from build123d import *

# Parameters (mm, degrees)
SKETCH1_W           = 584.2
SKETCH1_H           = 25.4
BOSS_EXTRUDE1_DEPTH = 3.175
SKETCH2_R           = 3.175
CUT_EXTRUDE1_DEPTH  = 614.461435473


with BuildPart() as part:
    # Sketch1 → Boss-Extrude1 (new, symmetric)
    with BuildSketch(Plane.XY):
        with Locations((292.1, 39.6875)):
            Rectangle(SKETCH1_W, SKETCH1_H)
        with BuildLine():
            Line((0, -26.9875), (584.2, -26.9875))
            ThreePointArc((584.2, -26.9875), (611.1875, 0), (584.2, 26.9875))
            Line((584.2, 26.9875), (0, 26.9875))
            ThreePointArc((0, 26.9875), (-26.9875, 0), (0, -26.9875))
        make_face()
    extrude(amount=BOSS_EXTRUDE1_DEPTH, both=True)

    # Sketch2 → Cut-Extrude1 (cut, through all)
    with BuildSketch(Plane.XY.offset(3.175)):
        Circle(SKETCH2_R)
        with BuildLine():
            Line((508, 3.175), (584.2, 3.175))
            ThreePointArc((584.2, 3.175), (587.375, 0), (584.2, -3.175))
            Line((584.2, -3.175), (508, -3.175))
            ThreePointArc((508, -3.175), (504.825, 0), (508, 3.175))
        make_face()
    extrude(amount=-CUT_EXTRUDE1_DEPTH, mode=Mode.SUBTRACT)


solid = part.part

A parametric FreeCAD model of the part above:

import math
import FreeCAD as App
import Part
import Sketcher
from FreeCAD import Vector
Q = App.Units.Quantity

doc = App.newDocument("Part")
body = doc.addObject("PartDesign::Body", "Body")

sketch1 = body.newObject("Sketcher::SketchObject", "Sketch")
sketch1.AttachmentSupport = (doc.getObject("XY_Plane"), [""])
sketch1.MapMode = "FlatFace"
sketch1.addGeometry(Part.LineSegment(Vector(0, 52, 0), Vector(0, 27, 0)), False)
sketch1.addGeometry(Part.ArcOfCircle(Part.Circle(Vector(0, 0, 0), Vector(0, 0, 1), 27), math.radians(90), math.radians(270)), False)
sketch1.addGeometry(Part.LineSegment(Vector(0, -27, 0), Vector(584, -27, 0)), False)
sketch1.addGeometry(Part.ArcOfCircle(Part.Circle(Vector(584, 0, 0), Vector(0, 0, 1), 27), math.radians(-90), math.radians(90)), False)
sketch1.addGeometry(Part.LineSegment(Vector(584, 27, 0), Vector(584, 52, 0)), False)
sketch1.addGeometry(Part.LineSegment(Vector(584, 52, 0), Vector(0, 52, 0)), False)
sketch1.addConstraint(Sketcher.Constraint("Coincident", 0, 2, 1, 1))
sketch1.addConstraint(Sketcher.Constraint("Tangent", 1, 2, 2, 1))
sketch1.addConstraint(Sketcher.Constraint("Tangent", 2, 2, 3, 1))
sketch1.addConstraint(Sketcher.Constraint("Coincident", 3, 2, 4, 1))
sketch1.addConstraint(Sketcher.Constraint("Coincident", 4, 2, 5, 1))
sketch1.addConstraint(Sketcher.Constraint("Coincident", 5, 2, 0, 1))
sketch1.addConstraint(Sketcher.Constraint("Vertical", 0))
sketch1.addConstraint(Sketcher.Constraint("Horizontal", 2))
sketch1.addConstraint(Sketcher.Constraint("Vertical", 4))
sketch1.addConstraint(Sketcher.Constraint("Horizontal", 5))
sketch1.addConstraint(Sketcher.Constraint("Coincident", 1, 3, -1, 1))
sketch1.addConstraint(Sketcher.Constraint("Equal", 1, 3))
sketch1.addConstraint(Sketcher.Constraint("PointOnObject", 0, 2, -2))
sketch1.addConstraint(Sketcher.Constraint("Vertical", 2, 2, 3, 2))
sketch1.addConstraint(Sketcher.Constraint("DistanceX", 2, 1, 2, 2, Q("23 in")))
sketch1.addConstraint(Sketcher.Constraint("DistanceY", 0, 2, 0, 1, Q("1 in")))
sketch1.addConstraint(Sketcher.Constraint("Radius", 1, Q("1.0625 in")))
pad1 = body.newObject("PartDesign::Pad", "Pad")
pad1.Profile = sketch1
pad1.Length = Q("0.25 in")
pad1.Midplane = True

sketch2 = body.newObject("Sketcher::SketchObject", "Sketch001")
sketch2.AttachmentSupport = (doc.getObject("XY_Plane"), [""])
sketch2.MapMode = "FlatFace"
sketch2.AttachmentOffset = App.Placement(Vector(0, 0, 0.125 * 25.4), App.Rotation())
sketch2.addGeometry(Part.Circle(Vector(0, 0, 0), Vector(0, 0, 1), 3.2), False)
sketch2.addGeometry(Part.LineSegment(Vector(584.2, 3.2, 0), Vector(508, 3.2, 0)), False)
sketch2.addGeometry(Part.ArcOfCircle(Part.Circle(Vector(508, 0, 0), Vector(0, 0, 1), 3.2), math.radians(90), math.radians(270)), False)
sketch2.addGeometry(Part.LineSegment(Vector(508, -3.2, 0), Vector(584.2, -3.2, 0)), False)
sketch2.addGeometry(Part.ArcOfCircle(Part.Circle(Vector(584.2, 0, 0), Vector(0, 0, 1), 3.2), math.radians(-90), math.radians(90)), False)
sketch2.addConstraint(Sketcher.Constraint("Tangent", 1, 2, 2, 1))
sketch2.addConstraint(Sketcher.Constraint("Tangent", 2, 2, 3, 1))
sketch2.addConstraint(Sketcher.Constraint("Tangent", 3, 2, 4, 1))
sketch2.addConstraint(Sketcher.Constraint("Tangent", 4, 2, 1, 1))
sketch2.addConstraint(Sketcher.Constraint("Horizontal", 1))
sketch2.addConstraint(Sketcher.Constraint("Horizontal", 3))
sketch2.addConstraint(Sketcher.Constraint("Coincident", 0, 3, -1, 1))
sketch2.addConstraint(Sketcher.Constraint("Equal", 0, 2))
sketch2.addConstraint(Sketcher.Constraint("PointOnObject", 2, 3, -1))
sketch2.addConstraint(Sketcher.Constraint("Diameter", 0, Q("0.25 in")))
sketch2.addConstraint(Sketcher.Constraint("DistanceX", 1, 2, 1, 1, Q("3 in")))
sketch2.addConstraint(Sketcher.Constraint("DistanceX", -1, 1, 2, 3, Q("20 in")))
pocket1 = body.newObject("PartDesign::Pocket", "Pocket")
pocket1.Profile = sketch2
pocket1.Type = "ThroughAll"

doc.recompute()
